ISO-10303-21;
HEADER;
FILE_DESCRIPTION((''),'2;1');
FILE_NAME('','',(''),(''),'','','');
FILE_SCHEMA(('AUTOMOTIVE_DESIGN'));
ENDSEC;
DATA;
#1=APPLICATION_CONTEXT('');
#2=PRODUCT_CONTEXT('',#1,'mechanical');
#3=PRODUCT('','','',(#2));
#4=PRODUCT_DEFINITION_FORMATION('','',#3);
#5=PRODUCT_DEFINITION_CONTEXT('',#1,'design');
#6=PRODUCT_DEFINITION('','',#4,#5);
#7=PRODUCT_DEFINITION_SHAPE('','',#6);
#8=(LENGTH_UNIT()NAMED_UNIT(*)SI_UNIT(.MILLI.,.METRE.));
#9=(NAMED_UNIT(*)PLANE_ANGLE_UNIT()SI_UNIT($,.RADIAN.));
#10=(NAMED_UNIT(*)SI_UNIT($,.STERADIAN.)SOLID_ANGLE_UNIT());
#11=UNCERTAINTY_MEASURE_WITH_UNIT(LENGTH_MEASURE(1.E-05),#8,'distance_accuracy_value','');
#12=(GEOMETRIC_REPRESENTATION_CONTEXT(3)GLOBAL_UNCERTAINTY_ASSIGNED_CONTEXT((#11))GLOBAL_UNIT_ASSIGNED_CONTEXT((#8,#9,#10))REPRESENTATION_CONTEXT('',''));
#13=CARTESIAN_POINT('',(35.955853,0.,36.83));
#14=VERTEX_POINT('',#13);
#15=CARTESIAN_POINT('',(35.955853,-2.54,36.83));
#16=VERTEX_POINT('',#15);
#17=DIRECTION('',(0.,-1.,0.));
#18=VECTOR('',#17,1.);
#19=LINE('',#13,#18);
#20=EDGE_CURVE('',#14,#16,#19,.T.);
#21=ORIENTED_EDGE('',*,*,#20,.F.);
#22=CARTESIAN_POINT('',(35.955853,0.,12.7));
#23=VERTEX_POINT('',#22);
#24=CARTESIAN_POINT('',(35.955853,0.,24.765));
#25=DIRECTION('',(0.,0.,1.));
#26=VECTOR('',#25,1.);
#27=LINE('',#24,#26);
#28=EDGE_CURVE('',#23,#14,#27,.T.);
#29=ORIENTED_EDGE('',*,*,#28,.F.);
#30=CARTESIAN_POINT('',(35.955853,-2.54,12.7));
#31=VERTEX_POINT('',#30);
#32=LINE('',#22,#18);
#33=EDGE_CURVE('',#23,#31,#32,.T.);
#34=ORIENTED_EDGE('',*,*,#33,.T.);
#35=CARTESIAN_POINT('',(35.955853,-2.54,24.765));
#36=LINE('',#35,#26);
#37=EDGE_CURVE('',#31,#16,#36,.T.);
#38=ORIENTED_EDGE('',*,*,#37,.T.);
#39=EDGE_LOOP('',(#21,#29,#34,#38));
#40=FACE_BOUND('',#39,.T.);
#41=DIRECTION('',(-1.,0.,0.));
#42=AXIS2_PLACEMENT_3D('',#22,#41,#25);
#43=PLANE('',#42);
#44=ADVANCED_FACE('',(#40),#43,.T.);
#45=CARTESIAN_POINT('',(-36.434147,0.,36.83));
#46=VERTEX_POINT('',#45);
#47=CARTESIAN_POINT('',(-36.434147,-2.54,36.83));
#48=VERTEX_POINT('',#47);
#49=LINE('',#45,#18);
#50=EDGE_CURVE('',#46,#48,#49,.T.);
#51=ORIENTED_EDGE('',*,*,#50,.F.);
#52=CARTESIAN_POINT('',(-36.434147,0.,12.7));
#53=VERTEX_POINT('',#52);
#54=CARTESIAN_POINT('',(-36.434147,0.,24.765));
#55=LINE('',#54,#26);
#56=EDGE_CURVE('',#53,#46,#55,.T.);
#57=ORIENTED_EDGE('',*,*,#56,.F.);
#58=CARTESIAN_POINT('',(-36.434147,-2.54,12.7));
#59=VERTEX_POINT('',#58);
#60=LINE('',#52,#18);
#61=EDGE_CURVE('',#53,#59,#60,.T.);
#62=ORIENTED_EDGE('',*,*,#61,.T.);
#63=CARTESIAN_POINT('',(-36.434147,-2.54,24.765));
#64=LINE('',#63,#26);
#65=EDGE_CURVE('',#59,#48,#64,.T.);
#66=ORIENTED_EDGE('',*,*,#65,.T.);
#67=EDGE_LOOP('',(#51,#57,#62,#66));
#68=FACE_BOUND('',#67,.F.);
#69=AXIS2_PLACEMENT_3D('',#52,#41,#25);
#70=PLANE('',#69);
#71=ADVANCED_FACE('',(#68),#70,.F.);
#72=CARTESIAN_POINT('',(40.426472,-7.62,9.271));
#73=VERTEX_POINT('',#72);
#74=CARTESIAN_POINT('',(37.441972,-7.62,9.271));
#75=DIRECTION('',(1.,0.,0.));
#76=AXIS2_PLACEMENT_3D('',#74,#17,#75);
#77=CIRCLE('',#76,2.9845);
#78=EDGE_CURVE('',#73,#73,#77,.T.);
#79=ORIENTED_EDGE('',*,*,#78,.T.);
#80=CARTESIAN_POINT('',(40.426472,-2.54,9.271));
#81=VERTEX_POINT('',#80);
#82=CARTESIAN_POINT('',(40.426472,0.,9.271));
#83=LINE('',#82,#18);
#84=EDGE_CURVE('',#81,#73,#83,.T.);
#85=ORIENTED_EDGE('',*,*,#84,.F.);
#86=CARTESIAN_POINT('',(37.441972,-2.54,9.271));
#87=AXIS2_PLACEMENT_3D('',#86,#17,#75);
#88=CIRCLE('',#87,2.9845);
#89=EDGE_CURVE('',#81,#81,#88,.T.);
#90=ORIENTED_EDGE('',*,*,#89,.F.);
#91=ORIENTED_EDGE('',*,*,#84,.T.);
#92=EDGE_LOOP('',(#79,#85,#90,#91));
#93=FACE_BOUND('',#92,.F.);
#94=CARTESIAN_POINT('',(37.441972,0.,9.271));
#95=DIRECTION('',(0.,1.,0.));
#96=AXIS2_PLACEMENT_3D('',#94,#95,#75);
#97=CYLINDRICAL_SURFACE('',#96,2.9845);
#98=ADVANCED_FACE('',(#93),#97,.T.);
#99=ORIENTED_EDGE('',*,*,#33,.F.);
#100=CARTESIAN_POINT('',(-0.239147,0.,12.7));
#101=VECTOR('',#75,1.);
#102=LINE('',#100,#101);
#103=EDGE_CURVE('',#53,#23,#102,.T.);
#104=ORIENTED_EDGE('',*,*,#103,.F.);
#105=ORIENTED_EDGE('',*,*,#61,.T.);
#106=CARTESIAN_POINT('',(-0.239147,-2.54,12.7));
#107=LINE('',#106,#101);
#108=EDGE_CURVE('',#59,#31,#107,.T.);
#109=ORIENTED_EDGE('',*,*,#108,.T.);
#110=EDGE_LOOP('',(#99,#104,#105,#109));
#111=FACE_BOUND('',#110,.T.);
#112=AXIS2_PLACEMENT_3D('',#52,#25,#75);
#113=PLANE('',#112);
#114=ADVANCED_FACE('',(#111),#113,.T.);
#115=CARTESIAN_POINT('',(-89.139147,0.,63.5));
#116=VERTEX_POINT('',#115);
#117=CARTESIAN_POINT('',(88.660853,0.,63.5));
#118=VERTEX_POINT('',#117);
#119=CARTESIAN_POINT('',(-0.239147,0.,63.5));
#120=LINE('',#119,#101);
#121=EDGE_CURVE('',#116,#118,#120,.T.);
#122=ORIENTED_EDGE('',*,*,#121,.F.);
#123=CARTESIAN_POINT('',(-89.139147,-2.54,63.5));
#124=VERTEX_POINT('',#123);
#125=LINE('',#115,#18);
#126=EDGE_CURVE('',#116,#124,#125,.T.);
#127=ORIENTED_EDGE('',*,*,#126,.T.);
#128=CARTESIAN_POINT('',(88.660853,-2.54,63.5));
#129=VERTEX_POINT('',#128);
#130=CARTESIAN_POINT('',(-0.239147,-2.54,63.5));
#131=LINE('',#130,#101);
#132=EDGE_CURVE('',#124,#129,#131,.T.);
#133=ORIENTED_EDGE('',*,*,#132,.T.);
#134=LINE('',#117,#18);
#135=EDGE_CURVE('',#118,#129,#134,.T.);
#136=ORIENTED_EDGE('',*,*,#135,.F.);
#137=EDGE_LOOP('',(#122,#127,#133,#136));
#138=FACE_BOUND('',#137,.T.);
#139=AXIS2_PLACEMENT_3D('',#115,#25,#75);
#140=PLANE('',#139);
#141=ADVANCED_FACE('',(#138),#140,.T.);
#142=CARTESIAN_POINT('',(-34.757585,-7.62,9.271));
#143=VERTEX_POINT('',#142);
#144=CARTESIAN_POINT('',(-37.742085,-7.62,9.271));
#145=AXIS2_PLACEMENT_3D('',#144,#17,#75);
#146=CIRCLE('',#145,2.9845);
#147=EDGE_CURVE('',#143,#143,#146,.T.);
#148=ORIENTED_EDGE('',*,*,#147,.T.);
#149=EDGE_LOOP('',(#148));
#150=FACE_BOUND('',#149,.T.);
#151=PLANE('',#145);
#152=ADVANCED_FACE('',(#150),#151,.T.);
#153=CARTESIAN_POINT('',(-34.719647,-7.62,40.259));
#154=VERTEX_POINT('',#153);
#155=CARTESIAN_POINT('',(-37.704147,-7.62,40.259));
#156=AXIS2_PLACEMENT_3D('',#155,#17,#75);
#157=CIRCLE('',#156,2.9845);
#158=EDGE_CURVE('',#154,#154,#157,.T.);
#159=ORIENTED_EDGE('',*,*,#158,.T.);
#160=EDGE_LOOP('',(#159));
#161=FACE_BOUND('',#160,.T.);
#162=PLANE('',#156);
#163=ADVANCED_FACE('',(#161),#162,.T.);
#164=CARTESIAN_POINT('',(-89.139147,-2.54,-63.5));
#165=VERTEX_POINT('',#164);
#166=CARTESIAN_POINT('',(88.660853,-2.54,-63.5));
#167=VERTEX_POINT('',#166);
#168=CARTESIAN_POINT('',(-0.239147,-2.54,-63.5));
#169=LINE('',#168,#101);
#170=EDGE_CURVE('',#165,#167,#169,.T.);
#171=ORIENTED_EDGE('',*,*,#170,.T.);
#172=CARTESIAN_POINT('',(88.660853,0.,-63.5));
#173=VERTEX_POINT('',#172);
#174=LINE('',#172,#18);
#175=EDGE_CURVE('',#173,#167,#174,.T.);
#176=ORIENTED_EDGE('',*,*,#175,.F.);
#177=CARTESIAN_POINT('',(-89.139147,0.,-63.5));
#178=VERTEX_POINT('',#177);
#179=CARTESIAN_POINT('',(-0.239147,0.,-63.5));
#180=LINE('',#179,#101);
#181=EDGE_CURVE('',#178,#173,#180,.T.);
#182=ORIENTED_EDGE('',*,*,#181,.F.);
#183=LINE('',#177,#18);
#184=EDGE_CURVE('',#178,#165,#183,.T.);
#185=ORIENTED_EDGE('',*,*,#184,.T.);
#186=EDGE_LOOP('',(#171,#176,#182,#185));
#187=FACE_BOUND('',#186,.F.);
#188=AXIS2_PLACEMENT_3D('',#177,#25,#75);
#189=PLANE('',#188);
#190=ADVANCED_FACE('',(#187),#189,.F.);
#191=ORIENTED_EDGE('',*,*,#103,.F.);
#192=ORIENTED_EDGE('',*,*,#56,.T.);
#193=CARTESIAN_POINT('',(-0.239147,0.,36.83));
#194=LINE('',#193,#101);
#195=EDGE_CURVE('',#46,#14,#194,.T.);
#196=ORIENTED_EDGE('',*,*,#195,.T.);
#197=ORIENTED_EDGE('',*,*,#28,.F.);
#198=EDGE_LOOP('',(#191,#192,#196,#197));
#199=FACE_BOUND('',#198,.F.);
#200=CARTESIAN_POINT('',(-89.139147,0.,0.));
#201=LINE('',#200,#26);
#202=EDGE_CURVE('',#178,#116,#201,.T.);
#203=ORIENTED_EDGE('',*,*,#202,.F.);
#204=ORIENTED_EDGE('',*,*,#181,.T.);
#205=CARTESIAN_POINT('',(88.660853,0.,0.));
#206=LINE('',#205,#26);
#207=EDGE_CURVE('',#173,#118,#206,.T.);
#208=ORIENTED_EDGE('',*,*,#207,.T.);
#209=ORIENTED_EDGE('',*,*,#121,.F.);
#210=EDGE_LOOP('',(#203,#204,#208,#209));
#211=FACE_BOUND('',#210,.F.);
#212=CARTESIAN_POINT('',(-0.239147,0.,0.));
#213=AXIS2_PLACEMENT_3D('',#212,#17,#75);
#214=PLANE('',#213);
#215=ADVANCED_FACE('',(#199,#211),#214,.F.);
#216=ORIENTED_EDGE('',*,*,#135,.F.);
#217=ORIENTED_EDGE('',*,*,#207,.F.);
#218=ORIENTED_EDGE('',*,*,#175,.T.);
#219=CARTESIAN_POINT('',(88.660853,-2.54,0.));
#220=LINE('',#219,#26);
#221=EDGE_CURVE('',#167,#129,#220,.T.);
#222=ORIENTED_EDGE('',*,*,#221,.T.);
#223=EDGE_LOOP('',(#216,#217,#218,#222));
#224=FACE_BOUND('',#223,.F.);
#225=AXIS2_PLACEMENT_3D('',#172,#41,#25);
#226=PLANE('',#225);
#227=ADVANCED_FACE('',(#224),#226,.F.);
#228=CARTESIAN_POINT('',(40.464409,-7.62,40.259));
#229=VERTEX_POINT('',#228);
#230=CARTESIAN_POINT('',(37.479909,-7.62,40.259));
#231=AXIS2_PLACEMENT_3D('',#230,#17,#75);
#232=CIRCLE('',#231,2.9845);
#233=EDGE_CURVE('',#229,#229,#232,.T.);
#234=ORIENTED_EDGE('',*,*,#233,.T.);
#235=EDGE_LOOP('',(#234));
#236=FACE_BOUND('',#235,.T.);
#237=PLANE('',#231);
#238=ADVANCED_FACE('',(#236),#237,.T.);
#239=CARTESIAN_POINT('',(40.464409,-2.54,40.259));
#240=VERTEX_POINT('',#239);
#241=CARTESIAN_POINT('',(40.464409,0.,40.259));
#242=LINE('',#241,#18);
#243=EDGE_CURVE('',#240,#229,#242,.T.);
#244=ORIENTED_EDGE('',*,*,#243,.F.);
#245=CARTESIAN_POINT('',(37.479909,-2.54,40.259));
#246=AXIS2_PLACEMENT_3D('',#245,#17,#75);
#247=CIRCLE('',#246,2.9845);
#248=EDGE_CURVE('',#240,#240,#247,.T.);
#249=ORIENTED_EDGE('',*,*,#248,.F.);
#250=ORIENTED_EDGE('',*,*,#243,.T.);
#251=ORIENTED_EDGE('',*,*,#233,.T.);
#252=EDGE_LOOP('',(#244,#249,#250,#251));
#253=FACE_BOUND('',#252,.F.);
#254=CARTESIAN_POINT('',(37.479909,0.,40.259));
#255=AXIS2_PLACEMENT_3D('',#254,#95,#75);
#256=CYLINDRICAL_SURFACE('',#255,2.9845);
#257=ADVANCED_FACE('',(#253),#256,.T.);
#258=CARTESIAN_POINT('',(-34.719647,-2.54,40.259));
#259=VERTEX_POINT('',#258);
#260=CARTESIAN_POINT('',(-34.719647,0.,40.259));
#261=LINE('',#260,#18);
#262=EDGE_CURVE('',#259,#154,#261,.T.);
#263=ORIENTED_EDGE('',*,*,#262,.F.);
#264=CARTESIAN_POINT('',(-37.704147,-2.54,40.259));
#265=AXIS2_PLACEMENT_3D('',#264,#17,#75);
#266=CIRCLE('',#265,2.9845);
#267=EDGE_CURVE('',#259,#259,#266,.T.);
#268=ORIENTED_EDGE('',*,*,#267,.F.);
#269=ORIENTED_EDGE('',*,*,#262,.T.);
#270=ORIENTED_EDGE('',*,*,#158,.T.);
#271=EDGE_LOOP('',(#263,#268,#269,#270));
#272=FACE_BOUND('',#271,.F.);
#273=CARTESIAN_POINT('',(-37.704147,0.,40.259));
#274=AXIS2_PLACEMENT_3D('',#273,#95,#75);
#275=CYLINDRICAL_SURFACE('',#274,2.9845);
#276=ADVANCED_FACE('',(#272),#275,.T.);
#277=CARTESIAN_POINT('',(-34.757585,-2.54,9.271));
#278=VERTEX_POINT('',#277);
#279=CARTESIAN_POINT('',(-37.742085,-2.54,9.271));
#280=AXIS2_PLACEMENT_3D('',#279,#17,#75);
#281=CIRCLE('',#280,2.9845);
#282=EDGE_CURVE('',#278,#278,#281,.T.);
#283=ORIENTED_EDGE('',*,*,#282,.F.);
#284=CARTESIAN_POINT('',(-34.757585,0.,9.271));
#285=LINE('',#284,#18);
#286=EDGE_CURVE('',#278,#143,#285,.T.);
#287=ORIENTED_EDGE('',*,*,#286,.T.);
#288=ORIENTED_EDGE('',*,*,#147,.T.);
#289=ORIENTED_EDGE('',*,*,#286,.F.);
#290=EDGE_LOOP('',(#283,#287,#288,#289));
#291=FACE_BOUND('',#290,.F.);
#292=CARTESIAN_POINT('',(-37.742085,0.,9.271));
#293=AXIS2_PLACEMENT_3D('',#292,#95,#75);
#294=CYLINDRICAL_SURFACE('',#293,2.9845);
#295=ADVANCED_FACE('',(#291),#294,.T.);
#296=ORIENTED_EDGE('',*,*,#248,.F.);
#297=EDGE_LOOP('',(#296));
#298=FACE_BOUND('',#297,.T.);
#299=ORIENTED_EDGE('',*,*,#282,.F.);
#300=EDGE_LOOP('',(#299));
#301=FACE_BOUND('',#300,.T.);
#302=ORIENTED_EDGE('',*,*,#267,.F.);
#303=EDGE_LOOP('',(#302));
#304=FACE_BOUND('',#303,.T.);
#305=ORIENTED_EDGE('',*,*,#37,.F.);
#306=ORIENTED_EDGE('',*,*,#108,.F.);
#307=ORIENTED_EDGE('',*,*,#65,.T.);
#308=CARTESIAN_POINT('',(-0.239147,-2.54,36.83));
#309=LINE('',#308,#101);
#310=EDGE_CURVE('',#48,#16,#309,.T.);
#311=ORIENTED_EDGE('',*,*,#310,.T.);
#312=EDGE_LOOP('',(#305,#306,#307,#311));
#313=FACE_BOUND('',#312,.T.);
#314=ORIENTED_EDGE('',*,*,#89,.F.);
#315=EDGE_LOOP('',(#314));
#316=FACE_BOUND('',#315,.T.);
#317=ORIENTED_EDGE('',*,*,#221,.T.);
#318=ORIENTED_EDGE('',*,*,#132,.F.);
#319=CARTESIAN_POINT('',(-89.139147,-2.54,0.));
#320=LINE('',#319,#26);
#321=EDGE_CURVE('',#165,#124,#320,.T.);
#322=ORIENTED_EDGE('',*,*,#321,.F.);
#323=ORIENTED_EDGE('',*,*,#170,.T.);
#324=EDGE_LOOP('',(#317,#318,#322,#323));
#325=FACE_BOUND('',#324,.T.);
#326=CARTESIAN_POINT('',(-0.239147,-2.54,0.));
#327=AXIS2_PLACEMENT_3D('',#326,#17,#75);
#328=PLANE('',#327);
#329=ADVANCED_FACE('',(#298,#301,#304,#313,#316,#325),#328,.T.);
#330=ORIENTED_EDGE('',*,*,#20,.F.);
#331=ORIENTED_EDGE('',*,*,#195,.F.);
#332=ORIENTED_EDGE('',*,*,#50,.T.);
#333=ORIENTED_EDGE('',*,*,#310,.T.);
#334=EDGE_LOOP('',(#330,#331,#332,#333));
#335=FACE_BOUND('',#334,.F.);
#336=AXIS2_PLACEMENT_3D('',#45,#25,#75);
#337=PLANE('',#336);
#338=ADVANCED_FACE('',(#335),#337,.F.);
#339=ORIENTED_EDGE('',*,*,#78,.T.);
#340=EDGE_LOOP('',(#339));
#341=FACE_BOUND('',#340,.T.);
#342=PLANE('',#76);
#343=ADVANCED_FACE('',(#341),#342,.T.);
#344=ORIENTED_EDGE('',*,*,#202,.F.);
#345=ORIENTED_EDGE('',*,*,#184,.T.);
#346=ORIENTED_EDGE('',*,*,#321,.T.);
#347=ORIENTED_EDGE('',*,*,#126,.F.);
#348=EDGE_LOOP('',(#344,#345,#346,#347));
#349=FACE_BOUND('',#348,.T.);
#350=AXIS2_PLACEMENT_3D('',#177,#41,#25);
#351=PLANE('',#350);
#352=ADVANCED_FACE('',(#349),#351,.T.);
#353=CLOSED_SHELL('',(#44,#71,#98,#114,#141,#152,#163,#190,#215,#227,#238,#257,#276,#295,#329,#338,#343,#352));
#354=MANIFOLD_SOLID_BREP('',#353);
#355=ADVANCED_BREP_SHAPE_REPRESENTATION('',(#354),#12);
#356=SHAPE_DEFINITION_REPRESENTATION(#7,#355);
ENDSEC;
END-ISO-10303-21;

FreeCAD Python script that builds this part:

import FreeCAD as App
import Part
import Sketcher
Q = App.Units.Quantity

doc = App.newDocument("Part")
body = doc.addObject("PartDesign::Body", "Body")

sketch1 = doc.addObject("Sketcher::SketchObject", "Sketch")
body.addObject(sketch1)
sketch1.AttachmentSupport = (doc.XZ_Plane, [""])
sketch1.MapMode = "FlatFace"
sketch1.addGeometry([
    Part.LineSegment(App.Vector(-89.1, 63.5, 0), App.Vector(-89.1, -63.5, 0)),
    Part.LineSegment(App.Vector(-89.1, -63.5, 0), App.Vector(88.7, -63.5, 0)),
    Part.LineSegment(App.Vector(88.7, -63.5, 0), App.Vector(88.7, 63.5, 0)),
    Part.LineSegment(App.Vector(88.7, 63.5, 0), App.Vector(-89.1, 63.5, 0)),
    Part.Circle(App.Vector(-37.7, 9.3, 0), App.Vector(0, 0, 1), 3),
    Part.Circle(App.Vector(37.4, 9.3, 0), App.Vector(0, 0, 1), 3),
    Part.LineSegment(App.Vector(36, 12.7, 0), App.Vector(-36.4, 12.7, 0)),
    Part.LineSegment(App.Vector(-36.4, 12.7, 0), App.Vector(-36.4, 36.8, 0)),
    Part.LineSegment(App.Vector(-36.4, 36.8, 0), App.Vector(36, 36.8, 0)),
    Part.LineSegment(App.Vector(36, 36.8, 0), App.Vector(36, 12.7, 0)),
    Part.Circle(App.Vector(-37.7, 40.3, 0), App.Vector(0, 0, 1), 3),
    Part.Circle(App.Vector(37.5, 40.3, 0), App.Vector(0, 0, 1), 3),
], False)
sketch1.addConstraint([
    Sketcher.Constraint("Coincident", 0, 2, 1, 1),
    Sketcher.Constraint("Coincident", 1, 2, 2, 1),
    Sketcher.Constraint("Coincident", 2, 2, 3, 1),
    Sketcher.Constraint("Coincident", 3, 2, 0, 1),
    Sketcher.Constraint("Coincident", 6, 2, 7, 1),
    Sketcher.Constraint("Coincident", 7, 2, 8, 1),
    Sketcher.Constraint("Coincident", 8, 2, 9, 1),
    Sketcher.Constraint("Coincident", 9, 2, 6, 1),
    Sketcher.Constraint("Vertical", 0),
    Sketcher.Constraint("Horizontal", 1),
    Sketcher.Constraint("Vertical", 2),
    Sketcher.Constraint("Horizontal", 3),
    Sketcher.Constraint("Horizontal", 6),
    Sketcher.Constraint("Vertical", 7),
    Sketcher.Constraint("Horizontal", 8),
    Sketcher.Constraint("Vertical", 9),
    Sketcher.Constraint("Equal", 4, 5),
    Sketcher.Constraint("Equal", 5, 10),
    Sketcher.Constraint("Equal", 10, 11),
    Sketcher.Constraint("Horizontal", 4, 3, 5, 3),
    Sketcher.Constraint("Horizontal", 10, 3, 11, 3),
    Sketcher.Constraint("DistanceX", 1, 1, 1, 2, Q("7 in")),
    Sketcher.Constraint("DistanceY", 0, 2, 0, 1, Q("5 in")),
    Sketcher.Constraint("Diameter", 4, Q("0.235 in")),
    Sketcher.Constraint("DistanceY", 6, 2, 3, 2, Q("2 in")),
    Sketcher.Constraint("DistanceX", 6, 2, 6, 1, Q("2.85 in")),
    Sketcher.Constraint("DistanceY", 7, 1, 7, 2, Q("0.95 in")),
    Sketcher.Constraint("DistanceY", 0, 2, -1, 1, Q("2.5 in")),
    Sketcher.Constraint("DistanceX", 10, 3, 8, 2, Q("2.9 in")),
    Sketcher.Constraint("DistanceY", 4, 3, 10, 3, Q("1.22 in")),
    Sketcher.Constraint("DistanceY", -1, 1, 4, 3, Q("0.365 in")),
    Sketcher.Constraint("DistanceX", 0, 2, 10, 3, Q("2.025 in")),
    Sketcher.Constraint("DistanceX", -1, 1, 11, 3, 37.479909),
    Sketcher.Constraint("DistanceX", 4, 3, 10, 3, 0.037938),
    Sketcher.Constraint("DistanceX", 10, 3, 5, 3, 75.146119),
    Sketcher.Constraint("DistanceX", 4, 3, -1, 1, 37.742085),
])
pad1 = doc.addObject("PartDesign::Pad", "Pad")
body.addObject(pad1)
pad1.Profile = sketch1
pad1.Length = Q("0.1 in")

sketch2 = doc.addObject("Sketcher::SketchObject", "Sketch001")
body.addObject(sketch2)
sketch2.AttachmentSupport = (doc.XZ_Plane, [""])
sketch2.MapMode = "FlatFace"
sketch2.addGeometry([
    Part.Circle(App.Vector(-37.7, 40.3, 0), App.Vector(0, 0, 1), 3),
    Part.Circle(App.Vector(37.5, 40.3, 0), App.Vector(0, 0, 1), 3),
    Part.Circle(App.Vector(37.4, 9.3, 0), App.Vector(0, 0, 1), 3),
    Part.Circle(App.Vector(-37.7, 9.3, 0), App.Vector(0, 0, 1), 3),
], False)
sketch2.addConstraint([
    Sketcher.Constraint("Equal", 0, 1),
    Sketcher.Constraint("Equal", 1, 2),
    Sketcher.Constraint("Equal", 2, 3),
    Sketcher.Constraint("Horizontal", 0, 3, 1, 3),
    Sketcher.Constraint("Horizontal", 2, 3, 3, 3),
    Sketcher.Constraint("Diameter", 0, Q("0.235 in")),
    Sketcher.Constraint("DistanceY", 2, 3, 1, 3, Q("1.22 in")),
    Sketcher.Constraint("DistanceY", -1, 1, 0, 3, Q("1.585 in")),
    Sketcher.Constraint("DistanceX", -1, 1, 1, 3, 37.479909),
    Sketcher.Constraint("DistanceX", 0, 3, 2, 3, 75.146119),
    Sketcher.Constraint("DistanceX", 3, 3, 0, 3, 0.037938),
    Sketcher.Constraint("DistanceX", 0, 3, -1, 1, 37.704147),
])
pad2 = doc.addObject("PartDesign::Pad", "Pad001")
body.addObject(pad2)
pad2.Profile = sketch2
pad2.Length = Q("0.3 in")

doc.recompute()
